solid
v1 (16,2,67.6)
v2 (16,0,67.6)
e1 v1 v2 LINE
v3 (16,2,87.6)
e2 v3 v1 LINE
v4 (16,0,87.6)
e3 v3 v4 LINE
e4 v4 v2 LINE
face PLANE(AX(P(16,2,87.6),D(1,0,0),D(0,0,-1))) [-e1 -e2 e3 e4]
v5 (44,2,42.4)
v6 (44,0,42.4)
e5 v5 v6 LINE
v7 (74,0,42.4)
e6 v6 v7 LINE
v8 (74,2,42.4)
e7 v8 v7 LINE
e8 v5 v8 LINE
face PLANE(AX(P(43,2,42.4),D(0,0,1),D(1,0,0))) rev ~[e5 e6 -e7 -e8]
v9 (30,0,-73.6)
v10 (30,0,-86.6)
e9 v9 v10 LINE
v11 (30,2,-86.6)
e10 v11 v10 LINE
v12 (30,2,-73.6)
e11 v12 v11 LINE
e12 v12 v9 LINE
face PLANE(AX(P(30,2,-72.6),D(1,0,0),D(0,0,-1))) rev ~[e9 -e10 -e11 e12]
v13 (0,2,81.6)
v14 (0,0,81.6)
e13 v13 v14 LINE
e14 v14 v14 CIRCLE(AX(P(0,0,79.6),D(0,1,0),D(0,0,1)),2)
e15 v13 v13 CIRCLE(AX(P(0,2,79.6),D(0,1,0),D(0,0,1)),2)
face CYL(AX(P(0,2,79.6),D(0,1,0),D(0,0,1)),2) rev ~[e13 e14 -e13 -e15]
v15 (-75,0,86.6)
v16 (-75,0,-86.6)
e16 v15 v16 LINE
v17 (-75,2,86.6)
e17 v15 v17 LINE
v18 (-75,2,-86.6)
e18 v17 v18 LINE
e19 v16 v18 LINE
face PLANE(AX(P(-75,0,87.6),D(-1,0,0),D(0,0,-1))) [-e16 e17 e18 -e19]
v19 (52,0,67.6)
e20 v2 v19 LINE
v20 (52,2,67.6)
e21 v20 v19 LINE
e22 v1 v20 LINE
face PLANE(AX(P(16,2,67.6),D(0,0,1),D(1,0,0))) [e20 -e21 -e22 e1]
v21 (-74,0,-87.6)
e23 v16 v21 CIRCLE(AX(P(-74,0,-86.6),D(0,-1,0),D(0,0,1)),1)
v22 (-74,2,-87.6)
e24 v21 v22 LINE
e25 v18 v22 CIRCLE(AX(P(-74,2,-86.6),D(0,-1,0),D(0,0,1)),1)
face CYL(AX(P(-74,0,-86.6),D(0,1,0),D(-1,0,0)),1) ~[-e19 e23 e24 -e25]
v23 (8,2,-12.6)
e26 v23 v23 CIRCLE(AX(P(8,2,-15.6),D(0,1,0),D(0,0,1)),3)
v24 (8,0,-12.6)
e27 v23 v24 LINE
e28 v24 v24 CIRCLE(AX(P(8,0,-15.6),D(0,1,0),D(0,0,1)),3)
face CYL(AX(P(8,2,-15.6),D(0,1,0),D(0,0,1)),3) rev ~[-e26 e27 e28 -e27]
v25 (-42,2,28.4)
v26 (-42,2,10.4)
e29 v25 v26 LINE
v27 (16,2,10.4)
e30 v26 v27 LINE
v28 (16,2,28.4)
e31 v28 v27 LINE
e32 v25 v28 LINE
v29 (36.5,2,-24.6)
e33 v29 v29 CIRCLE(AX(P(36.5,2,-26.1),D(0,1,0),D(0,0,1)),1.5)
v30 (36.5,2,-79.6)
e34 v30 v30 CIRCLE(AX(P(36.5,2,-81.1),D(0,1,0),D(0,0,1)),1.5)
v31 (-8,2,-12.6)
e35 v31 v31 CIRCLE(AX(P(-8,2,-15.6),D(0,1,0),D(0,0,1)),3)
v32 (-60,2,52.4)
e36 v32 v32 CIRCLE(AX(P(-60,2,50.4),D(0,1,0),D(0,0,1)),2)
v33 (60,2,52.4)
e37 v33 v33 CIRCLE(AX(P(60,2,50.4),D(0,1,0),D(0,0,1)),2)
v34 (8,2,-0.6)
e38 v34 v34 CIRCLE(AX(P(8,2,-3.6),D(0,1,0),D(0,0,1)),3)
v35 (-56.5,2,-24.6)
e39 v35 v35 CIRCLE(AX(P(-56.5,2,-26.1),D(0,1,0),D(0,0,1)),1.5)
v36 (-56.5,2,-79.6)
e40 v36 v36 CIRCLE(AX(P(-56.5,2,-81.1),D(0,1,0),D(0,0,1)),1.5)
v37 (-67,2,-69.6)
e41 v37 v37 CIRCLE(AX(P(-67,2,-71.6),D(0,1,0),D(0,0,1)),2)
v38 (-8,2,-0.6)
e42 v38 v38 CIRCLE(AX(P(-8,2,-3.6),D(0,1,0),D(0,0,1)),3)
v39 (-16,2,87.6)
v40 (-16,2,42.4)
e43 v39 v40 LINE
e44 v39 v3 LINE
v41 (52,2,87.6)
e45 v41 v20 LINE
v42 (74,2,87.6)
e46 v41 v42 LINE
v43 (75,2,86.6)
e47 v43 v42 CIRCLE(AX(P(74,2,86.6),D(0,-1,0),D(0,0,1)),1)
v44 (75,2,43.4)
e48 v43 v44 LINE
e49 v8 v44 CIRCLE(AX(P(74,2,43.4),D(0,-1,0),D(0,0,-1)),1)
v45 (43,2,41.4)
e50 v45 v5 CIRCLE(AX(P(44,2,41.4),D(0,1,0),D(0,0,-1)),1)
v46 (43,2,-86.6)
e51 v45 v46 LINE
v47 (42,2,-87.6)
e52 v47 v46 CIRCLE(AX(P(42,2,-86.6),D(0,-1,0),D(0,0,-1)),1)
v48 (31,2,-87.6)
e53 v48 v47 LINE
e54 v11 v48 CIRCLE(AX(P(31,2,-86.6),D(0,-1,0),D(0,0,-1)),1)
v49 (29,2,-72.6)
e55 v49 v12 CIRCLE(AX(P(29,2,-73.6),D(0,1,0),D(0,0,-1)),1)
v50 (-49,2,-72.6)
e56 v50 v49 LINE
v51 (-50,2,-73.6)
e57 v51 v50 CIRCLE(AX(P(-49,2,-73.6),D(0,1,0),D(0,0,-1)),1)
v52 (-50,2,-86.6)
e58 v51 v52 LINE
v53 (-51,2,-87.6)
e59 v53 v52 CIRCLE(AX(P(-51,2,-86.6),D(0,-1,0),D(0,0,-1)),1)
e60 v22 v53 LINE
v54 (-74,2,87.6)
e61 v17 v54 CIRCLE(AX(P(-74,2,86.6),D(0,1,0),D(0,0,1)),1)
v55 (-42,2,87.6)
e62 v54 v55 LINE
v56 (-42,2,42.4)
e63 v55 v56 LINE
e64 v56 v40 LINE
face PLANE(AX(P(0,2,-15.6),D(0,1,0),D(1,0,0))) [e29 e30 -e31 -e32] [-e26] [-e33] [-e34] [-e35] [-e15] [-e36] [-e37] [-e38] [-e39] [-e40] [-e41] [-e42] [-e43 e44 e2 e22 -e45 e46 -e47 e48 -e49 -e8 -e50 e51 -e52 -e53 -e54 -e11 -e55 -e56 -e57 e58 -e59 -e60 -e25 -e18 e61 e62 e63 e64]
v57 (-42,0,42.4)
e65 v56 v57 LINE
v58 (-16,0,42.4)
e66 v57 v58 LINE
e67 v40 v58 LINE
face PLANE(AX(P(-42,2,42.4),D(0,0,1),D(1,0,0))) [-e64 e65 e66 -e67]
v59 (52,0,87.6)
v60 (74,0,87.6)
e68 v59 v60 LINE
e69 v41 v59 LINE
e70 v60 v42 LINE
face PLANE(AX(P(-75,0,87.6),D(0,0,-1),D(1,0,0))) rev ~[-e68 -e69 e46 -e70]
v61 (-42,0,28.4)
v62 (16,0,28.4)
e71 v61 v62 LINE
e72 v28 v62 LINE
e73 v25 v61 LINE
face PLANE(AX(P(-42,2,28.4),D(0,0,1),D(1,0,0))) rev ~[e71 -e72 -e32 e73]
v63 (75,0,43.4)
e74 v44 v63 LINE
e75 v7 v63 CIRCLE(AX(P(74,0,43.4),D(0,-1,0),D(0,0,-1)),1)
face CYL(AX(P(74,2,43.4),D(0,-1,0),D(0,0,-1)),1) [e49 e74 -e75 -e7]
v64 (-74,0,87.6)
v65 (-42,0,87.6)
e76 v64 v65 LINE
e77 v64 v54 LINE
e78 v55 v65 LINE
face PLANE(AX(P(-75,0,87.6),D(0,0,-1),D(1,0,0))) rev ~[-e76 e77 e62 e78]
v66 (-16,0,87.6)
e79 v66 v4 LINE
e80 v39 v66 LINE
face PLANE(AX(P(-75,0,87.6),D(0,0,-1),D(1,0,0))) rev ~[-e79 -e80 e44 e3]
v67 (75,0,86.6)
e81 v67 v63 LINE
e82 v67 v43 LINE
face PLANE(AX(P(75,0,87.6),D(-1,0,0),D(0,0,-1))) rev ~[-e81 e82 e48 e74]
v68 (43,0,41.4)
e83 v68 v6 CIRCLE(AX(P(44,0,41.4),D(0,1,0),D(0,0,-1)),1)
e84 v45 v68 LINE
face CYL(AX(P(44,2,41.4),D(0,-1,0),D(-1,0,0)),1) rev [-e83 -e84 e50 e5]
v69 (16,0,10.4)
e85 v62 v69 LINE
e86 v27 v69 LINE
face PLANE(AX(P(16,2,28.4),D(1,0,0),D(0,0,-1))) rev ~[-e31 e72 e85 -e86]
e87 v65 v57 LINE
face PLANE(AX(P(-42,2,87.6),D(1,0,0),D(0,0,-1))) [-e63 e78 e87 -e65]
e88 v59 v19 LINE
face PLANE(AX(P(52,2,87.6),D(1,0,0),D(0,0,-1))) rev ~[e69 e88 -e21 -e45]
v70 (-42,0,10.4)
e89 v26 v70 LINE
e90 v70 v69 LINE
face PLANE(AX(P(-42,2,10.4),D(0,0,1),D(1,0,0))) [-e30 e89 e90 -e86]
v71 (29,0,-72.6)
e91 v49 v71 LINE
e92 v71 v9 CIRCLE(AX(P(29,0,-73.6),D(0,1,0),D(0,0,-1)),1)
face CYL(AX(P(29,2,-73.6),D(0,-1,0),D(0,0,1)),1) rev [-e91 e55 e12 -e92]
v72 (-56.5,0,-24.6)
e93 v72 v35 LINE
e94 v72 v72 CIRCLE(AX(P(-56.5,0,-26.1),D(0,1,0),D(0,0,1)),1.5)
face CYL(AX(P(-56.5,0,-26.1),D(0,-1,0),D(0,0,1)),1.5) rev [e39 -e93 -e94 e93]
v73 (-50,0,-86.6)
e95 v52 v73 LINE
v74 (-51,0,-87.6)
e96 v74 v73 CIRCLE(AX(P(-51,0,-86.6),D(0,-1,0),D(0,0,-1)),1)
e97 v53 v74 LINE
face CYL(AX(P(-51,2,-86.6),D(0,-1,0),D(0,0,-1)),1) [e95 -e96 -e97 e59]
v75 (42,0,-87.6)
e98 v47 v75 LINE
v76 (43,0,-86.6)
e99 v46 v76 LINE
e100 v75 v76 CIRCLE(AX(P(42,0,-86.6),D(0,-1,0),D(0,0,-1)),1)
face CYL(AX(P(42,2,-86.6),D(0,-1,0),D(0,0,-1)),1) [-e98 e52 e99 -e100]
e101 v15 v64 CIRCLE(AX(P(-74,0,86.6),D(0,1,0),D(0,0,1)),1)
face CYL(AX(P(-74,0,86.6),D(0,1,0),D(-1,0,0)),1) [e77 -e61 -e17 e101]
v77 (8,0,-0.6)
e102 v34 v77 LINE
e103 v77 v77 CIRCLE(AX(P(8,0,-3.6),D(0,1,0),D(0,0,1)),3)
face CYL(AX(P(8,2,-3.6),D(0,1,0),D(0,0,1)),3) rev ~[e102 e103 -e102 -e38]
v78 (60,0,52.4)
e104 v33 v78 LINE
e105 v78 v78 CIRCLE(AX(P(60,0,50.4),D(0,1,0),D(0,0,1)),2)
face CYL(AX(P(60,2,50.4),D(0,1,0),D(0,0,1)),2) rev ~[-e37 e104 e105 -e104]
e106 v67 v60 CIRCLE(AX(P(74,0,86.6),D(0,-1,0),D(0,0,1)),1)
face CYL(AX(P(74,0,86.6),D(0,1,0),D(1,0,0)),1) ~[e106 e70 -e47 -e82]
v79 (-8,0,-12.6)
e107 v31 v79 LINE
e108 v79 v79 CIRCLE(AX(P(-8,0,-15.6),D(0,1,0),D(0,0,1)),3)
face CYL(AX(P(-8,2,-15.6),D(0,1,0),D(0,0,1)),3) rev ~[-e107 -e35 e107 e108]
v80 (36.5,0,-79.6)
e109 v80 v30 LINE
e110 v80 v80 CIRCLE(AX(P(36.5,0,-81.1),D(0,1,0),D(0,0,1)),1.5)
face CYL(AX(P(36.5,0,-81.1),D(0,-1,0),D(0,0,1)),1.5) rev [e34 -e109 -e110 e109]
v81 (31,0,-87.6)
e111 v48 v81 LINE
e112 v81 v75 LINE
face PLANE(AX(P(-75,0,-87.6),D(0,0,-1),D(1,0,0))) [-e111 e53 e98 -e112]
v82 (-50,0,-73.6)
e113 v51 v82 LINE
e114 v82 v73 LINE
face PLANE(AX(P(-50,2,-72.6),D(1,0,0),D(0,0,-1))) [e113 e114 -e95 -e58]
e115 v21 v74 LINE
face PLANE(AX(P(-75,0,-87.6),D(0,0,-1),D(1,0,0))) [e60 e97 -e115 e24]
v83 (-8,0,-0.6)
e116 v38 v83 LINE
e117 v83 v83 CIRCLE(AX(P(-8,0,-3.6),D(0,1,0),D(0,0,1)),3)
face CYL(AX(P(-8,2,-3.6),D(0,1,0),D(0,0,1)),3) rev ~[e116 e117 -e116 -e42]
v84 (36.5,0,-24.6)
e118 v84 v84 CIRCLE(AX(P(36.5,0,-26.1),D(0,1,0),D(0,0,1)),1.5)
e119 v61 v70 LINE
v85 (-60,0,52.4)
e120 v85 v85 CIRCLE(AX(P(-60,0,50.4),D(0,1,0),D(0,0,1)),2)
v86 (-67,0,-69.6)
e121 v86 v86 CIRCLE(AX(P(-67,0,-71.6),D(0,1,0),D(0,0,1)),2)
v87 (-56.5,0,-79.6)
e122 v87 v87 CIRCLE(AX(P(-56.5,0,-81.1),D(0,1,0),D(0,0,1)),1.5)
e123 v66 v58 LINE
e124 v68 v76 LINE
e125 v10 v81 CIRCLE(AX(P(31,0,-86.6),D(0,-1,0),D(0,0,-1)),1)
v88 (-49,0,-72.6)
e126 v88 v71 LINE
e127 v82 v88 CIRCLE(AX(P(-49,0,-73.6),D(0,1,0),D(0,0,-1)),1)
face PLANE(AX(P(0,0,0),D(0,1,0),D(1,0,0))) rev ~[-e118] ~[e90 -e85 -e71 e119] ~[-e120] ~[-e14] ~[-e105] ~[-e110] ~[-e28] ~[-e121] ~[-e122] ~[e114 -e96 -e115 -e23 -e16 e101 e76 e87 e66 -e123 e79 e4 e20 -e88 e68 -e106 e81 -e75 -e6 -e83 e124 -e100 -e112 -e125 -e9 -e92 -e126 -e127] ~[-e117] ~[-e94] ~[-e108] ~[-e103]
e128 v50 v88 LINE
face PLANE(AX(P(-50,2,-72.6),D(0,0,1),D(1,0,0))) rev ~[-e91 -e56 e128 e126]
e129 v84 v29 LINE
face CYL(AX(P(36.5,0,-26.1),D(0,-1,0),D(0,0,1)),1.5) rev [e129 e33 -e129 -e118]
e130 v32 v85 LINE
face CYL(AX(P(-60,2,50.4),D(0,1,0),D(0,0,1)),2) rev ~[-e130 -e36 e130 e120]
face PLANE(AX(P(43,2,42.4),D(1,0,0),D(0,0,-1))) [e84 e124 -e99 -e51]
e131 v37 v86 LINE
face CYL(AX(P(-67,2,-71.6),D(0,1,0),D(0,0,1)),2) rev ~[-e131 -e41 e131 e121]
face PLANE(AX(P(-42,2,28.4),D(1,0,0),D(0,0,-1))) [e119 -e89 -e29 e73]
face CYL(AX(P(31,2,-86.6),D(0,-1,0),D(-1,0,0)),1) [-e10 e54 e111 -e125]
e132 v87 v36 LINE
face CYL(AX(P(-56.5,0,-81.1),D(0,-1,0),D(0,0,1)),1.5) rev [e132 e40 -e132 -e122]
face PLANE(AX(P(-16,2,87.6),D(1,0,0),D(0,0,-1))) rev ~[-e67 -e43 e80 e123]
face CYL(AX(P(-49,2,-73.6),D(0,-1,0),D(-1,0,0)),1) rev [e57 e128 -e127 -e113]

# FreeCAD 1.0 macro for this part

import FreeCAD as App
import Part
import Sketcher


def edges_at(feature, points):
    """Names of the edges that pass closest to the given points."""
    edges = feature.Shape.Edges
    near = lambda p: min(range(len(edges)), key=lambda i: edges[i].distToShape(Part.Vertex(*p))[0])
    return sorted({f"Edge{near(p) + 1}" for p in points})


def add_polygon(sketch, points):
    """Adds a closed chain of lines whose ends are joined by coincident constraints."""
    first, n = sketch.GeometryCount, len(points)
    for a, b in zip(points, points[1:] + points[:1]):
        sketch.addGeometry(Part.LineSegment(App.Vector(*a, 0), App.Vector(*b, 0)), False)
    for i in range(n):
        sketch.addConstraint(Sketcher.Constraint("Coincident", first + i, 2, first + (i + 1) % n, 1))

doc = App.newDocument("Part")
params = doc.addObject("Spreadsheet::Sheet", "Params")
for row, (alias, value) in enumerate([
    ("sketch1_diameter", "3 mm"),
    ("sketch1_width", "150 mm"),
    ("sketch1_height", "175.2 mm"),
    ("pad1_length", "2 mm"),
    ("sketch2_width", "80 mm"),
    ("sketch2_height", "15 mm"),
    ("pocket1_length", "10 mm"),
    ("sketch3_width", "32 mm"),
    ("sketch3_height", "130 mm"),
    ("pocket2_length", "10 mm"),
    ("sketch4_diameter", "4 mm"),
    ("pocket3_length", "10 mm"),
    ("sketch5_diameter", "6 mm"),
    ("pocket4_length", "10 mm"),
    ("linearpattern_pitch", "8 mm"),
    ("linearpattern2_pitch", "8 mm"),
    ("sketch6_diameter", "6 mm"),
    ("pad2_length", "2 mm"),
    ("sketch7_width", "26 mm"),
    ("sketch7_width2", "36 mm"),
    ("sketch7_width3", "58 mm"),
    ("sketch7_height", "20 mm"),
    ("sketch7_height2", "18 mm"),
    ("pocket5_length", "10 mm"),
    ("fillet_radius", "1 mm"),
], start=1):
    params.set(f"A{row}", alias)
    params.set(f"B{row}", "=" + value)
    params.setAlias(f"B{row}", alias)

body = doc.addObject("PartDesign::Body", "Body")

# Sketch on XZ plane
sketch1 = doc.addObject("Sketcher::SketchObject", "Sketch")
body.addObject(sketch1)
sketch1.AttachmentSupport = (doc.XZ_Plane, [""])
sketch1.MapMode = "FlatFace"
add_polygon(sketch1, [(-75, -87.6), (-75, 87.6), (75, 87.6), (75, -87.6)])  # lines 0-3
sketch1.addGeometry(Part.Circle(App.Vector(-56.5, -26.1, 0), App.Vector(0, 0, 1), 1.5), False)  # 4
sketch1.addGeometry(Part.Circle(App.Vector(36.5, -26.1, 0), App.Vector(0, 0, 1), 1.5), False)  # 5
sketch1.addGeometry(Part.Circle(App.Vector(-56.5, -81.1, 0), App.Vector(0, 0, 1), 1.5), False)  # 6
sketch1.addGeometry(Part.Circle(App.Vector(36.5, -81.1, 0), App.Vector(0, 0, 1), 1.5), False)  # 7
sketch1.addConstraint([
    Sketcher.Constraint("Vertical", 0),
    Sketcher.Constraint("Horizontal", 1),
    Sketcher.Constraint("Vertical", 2),
    Sketcher.Constraint("Horizontal", 3),
    Sketcher.Constraint("Equal", 4, 5),
    Sketcher.Constraint("Equal", 5, 6),
    Sketcher.Constraint("Equal", 6, 7),
    Sketcher.Constraint("Symmetric", 0, 2, 2, 2, -1, 1),
    Sketcher.Constraint("Horizontal", 4, 3, 5, 3),
    Sketcher.Constraint("Horizontal", 6, 3, 7, 3),
    Sketcher.Constraint("Vertical", 4, 3, 6, 3),
    Sketcher.Constraint("Vertical", 5, 3, 7, 3),
    Sketcher.Constraint("Diameter", 4, 3.0),
    Sketcher.Constraint("DistanceX", 1, 1, 1, 2, 150.0),
    Sketcher.Constraint("DistanceY", 0, 1, 0, 2, 175.2),
    Sketcher.Constraint("DistanceX", 4, 3, 5, 3, 93.0),
    Sketcher.Constraint("DistanceY", 6, 3, 4, 3, 55.0),
    Sketcher.Constraint("DistanceX", 4, 3, -1, 1, 56.5),
    Sketcher.Constraint("DistanceY", 4, 3, -1, 1, 26.1),
])
sketch1.setExpression("Constraints[16]", "Params.sketch1_diameter")
sketch1.setExpression("Constraints[17]", "Params.sketch1_width")
sketch1.setExpression("Constraints[18]", "Params.sketch1_height")
pad1 = doc.addObject("PartDesign::Pad", "Pad")
body.addObject(pad1)
pad1.Profile = sketch1
pad1.setExpression("Length", "Params.pad1_length")
pad1.Reversed = True

# Sketch on XZ plane
sketch2 = doc.addObject("Sketcher::SketchObject", "Sketch001")
body.addObject(sketch2)
sketch2.AttachmentSupport = (doc.XZ_Plane, [""])
sketch2.MapMode = "FlatFace"
sketch2.AttachmentOffset = App.Placement(App.Vector(0, 0, -2), App.Rotation())
add_polygon(sketch2, [(-50, -88), (-50, -73), (30, -73), (30, -88)])  # lines 0-3
sketch2.addConstraint([
    Sketcher.Constraint("Vertical", 0),
    Sketcher.Constraint("Horizontal", 1),
    Sketcher.Constraint("Vertical", 2),
    Sketcher.Constraint("Horizontal", 3),
    Sketcher.Constraint("DistanceX", 1, 1, 1, 2, 80.0),
    Sketcher.Constraint("DistanceY", 0, 1, 0, 2, 15.0),
    Sketcher.Constraint("DistanceX", 0, 2, -1, 1, 50.0),
    Sketcher.Constraint("DistanceY", 0, 2, -1, 1, 72.6),
])
sketch2.setExpression("Constraints[8]", "Params.sketch2_width")
sketch2.setExpression("Constraints[9]", "Params.sketch2_height")
pocket1 = doc.addObject("PartDesign::Pocket", "Pocket")
body.addObject(pocket1)
pocket1.Profile = sketch2
pocket1.setExpression("Length", "Params.pocket1_length")
pocket1.Reversed = True

# Sketch on XZ plane
sketch3 = doc.addObject("Sketcher::SketchObject", "Sketch002")
body.addObject(sketch3)
sketch3.AttachmentSupport = (doc.XZ_Plane, [""])
sketch3.MapMode = "FlatFace"
sketch3.AttachmentOffset = App.Placement(App.Vector(0, 0, -2), App.Rotation())
add_polygon(sketch3, [(43, -88), (43, 42), (75, 42), (75, -88)])  # lines 0-3
sketch3.addConstraint([
    Sketcher.Constraint("Vertical", 0),
    Sketcher.Constraint("Horizontal", 1),
    Sketcher.Constraint("Vertical", 2),
    Sketcher.Constraint("Horizontal", 3),
    Sketcher.Constraint("DistanceX", 1, 1, 1, 2, 32.0),
    Sketcher.Constraint("DistanceY", 0, 1, 0, 2, 130.0),
    Sketcher.Constraint("DistanceX", -1, 1, 0, 2, 43.0),
    Sketcher.Constraint("DistanceY", -1, 1, 0, 2, 42.4),
])
sketch3.setExpression("Constraints[8]", "Params.sketch3_width")
sketch3.setExpression("Constraints[9]", "Params.sketch3_height")
pocket2 = doc.addObject("PartDesign::Pocket", "Pocket001")
body.addObject(pocket2)
pocket2.Profile = sketch3
pocket2.setExpression("Length", "Params.pocket2_length")
pocket2.Reversed = True

# Sketch on XZ plane
sketch4 = doc.addObject("Sketcher::SketchObject", "Sketch003")
body.addObject(sketch4)
sketch4.AttachmentSupport = (doc.XZ_Plane, [""])
sketch4.MapMode = "FlatFace"
sketch4.AttachmentOffset = App.Placement(App.Vector(0, 0, -2), App.Rotation())
sketch4.addGeometry([
    Part.Circle(App.Vector(-60, 50.4, 0), App.Vector(0, 0, 1), 2),
    Part.Circle(App.Vector(60, 50.4, 0), App.Vector(0, 0, 1), 2),
    Part.Circle(App.Vector(-67, -71.6, 0), App.Vector(0, 0, 1), 2),
    Part.Circle(App.Vector(0, 79.6, 0), App.Vector(0, 0, 1), 2),
], False)
sketch4.addConstraint([
    Sketcher.Constraint("Equal", 0, 1),
    Sketcher.Constraint("Equal", 1, 2),
    Sketcher.Constraint("Equal", 2, 3),
    Sketcher.Constraint("Symmetric", 0, 3, 1, 3, -2),
    Sketcher.Constraint("PointOnObject", 3, 3, -2),
    Sketcher.Constraint("Diameter", 0, 4.0),
    Sketcher.Constraint("DistanceX", 0, 3, -1, 1, 60.0),
    Sketcher.Constraint("DistanceX", 2, 3, -1, 1, 67.0),
    Sketcher.Constraint("DistanceY", 2, 3, 0, 3, 122.0),
    Sketcher.Constraint("DistanceY", -1, 1, 0, 3, 50.4),
    Sketcher.Constraint("DistanceY", -1, 1, 3, 3, 79.6),
])
sketch4.setExpression("Constraints[5]", "Params.sketch4_diameter")
pocket3 = doc.addObject("PartDesign::Pocket", "Pocket002")
body.addObject(pocket3)
pocket3.Profile = sketch4
pocket3.setExpression("Length", "Params.pocket3_length")
pocket3.Reversed = True

# Sketch on XZ plane
sketch5 = doc.addObject("Sketcher::SketchObject", "Sketch004")
body.addObject(sketch5)
sketch5.AttachmentSupport = (doc.XZ_Plane, [""])
sketch5.MapMode = "FlatFace"
sketch5.AttachmentOffset = App.Placement(App.Vector(0, 0, -2), App.Rotation())
sketch5.addGeometry([
    Part.Circle(App.Vector(0, -15.6, 0), App.Vector(0, 0, 1), 3),
    Part.Circle(App.Vector(0, -3.6, 0), App.Vector(0, 0, 1), 3),
], False)
sketch5.addConstraint([
    Sketcher.Constraint("Equal", 0, 1),
    Sketcher.Constraint("PointOnObject", 0, 3, -2),
    Sketcher.Constraint("PointOnObject", 1, 3, -2),
    Sketcher.Constraint("Diameter", 0, 6.0),
    Sketcher.Constraint("DistanceY", 0, 3, 1, 3, 12.0),
    Sketcher.Constraint("DistanceY", 0, 3, -1, 1, 15.6),
])
sketch5.setExpression("Constraints[3]", "Params.sketch5_diameter")
pocket4 = doc.addObject("PartDesign::Pocket", "Pocket003")
body.addObject(pocket4)
pocket4.Profile = sketch5
pocket4.setExpression("Length", "Params.pocket4_length")
pocket4.Reversed = True
doc.recompute()

linearpattern = doc.addObject("PartDesign::LinearPattern", "LinearPattern")
body.addObject(linearpattern)
linearpattern.Originals = [pocket4]
linearpattern.Direction = (doc.X_Axis, [""])
linearpattern.Mode = "offset"
linearpattern.setExpression("Offset", "Params.linearpattern_pitch")
linearpattern.Occurrences = 2
linearpattern.Reversed = True
body.Tip = linearpattern
doc.recompute()

linearpattern2 = doc.addObject("PartDesign::LinearPattern", "LinearPattern001")
body.addObject(linearpattern2)
linearpattern2.Originals = [pocket4]
linearpattern2.Direction = (doc.X_Axis, [""])
linearpattern2.Mode = "offset"
linearpattern2.setExpression("Offset", "Params.linearpattern2_pitch")
linearpattern2.Occurrences = 2
body.Tip = linearpattern2

# Sketch on XZ plane
sketch6 = doc.addObject("Sketcher::SketchObject", "Sketch005")
body.addObject(sketch6)
sketch6.AttachmentSupport = (doc.XZ_Plane, [""])
sketch6.MapMode = "FlatFace"
sketch6.AttachmentOffset = App.Placement(App.Vector(0, 0, -2), App.Rotation())
sketch6.addGeometry([
    Part.Circle(App.Vector(0, -15.6, 0), App.Vector(0, 0, 1), 3),
    Part.Circle(App.Vector(0, -3.6, 0), App.Vector(0, 0, 1), 3),
], False)
sketch6.addConstraint([
    Sketcher.Constraint("Equal", 0, 1),
    Sketcher.Constraint("PointOnObject", 0, 3, -2),
    Sketcher.Constraint("PointOnObject", 1, 3, -2),
    Sketcher.Constraint("Diameter", 0, 6.0),
    Sketcher.Constraint("DistanceY", 0, 3, 1, 3, 12.0),
    Sketcher.Constraint("DistanceY", 0, 3, -1, 1, 15.6),
])
sketch6.setExpression("Constraints[3]", "Params.sketch6_diameter")
pad2 = doc.addObject("PartDesign::Pad", "Pad001")
body.addObject(pad2)
pad2.Profile = sketch6
pad2.setExpression("Length", "Params.pad2_length")

# Sketch on XZ plane
sketch7 = doc.addObject("Sketcher::SketchObject", "Sketch006")
body.addObject(sketch7)
sketch7.AttachmentSupport = (doc.XZ_Plane, [""])
sketch7.MapMode = "FlatFace"
sketch7.AttachmentOffset = App.Placement(App.Vector(0, 0, -2), App.Rotation())
add_polygon(sketch7, [(-42, 42), (-42, 88), (-16, 88), (-16, 42)])  # lines 0-3
add_polygon(sketch7, [(16, 68), (16, 88), (52, 88), (52, 68)])  # lines 4-7
add_polygon(sketch7, [(-42, 10), (-42, 28), (16, 28), (16, 10)])  # lines 8-11
sketch7.addConstraint([
    Sketcher.Constraint("Vertical", 0),
    Sketcher.Constraint("Horizontal", 1),
    Sketcher.Constraint("Vertical", 2),
    Sketcher.Constraint("Horizontal", 3),
    Sketcher.Constraint("Vertical", 4),
    Sketcher.Constraint("Horizontal", 5),
    Sketcher.Constraint("Vertical", 6),
    Sketcher.Constraint("Horizontal", 7),
    Sketcher.Constraint("Vertical", 8),
    Sketcher.Constraint("Horizontal", 9),
    Sketcher.Constraint("Vertical", 10),
    Sketcher.Constraint("Horizontal", 11),
    Sketcher.Constraint("Symmetric", 1, 2, 4, 2, -2),
    Sketcher.Constraint("Vertical", 3, 2, 8, 2),
    Sketcher.Constraint("Vertical", 7, 2, 9, 2),
    Sketcher.Constraint("DistanceX", 1, 1, 1, 2, 26.0),
    Sketcher.Constraint("DistanceX", 5, 1, 5, 2, 36.0),
    Sketcher.Constraint("DistanceX", 9, 1, 9, 2, 58.0),
    Sketcher.Constraint("DistanceY", 4, 1, 4, 2, 20.0),
    Sketcher.Constraint("DistanceY", 8, 1, 8, 2, 18.0),
    Sketcher.Constraint("DistanceY", 0, 1, 0, 2, 45.2),
    Sketcher.Constraint("DistanceY", 8, 2, 3, 2, 14.0),
    Sketcher.Constraint("DistanceY", -1, 1, 0, 2, 87.6),
])
sketch7.setExpression("Constraints[27]", "Params.sketch7_width")
sketch7.setExpression("Constraints[28]", "Params.sketch7_width2")
sketch7.setExpression("Constraints[29]", "Params.sketch7_width3")
sketch7.setExpression("Constraints[30]", "Params.sketch7_height")
sketch7.setExpression("Constraints[31]", "Params.sketch7_height2")
pocket5 = doc.addObject("PartDesign::Pocket", "Pocket004")
body.addObject(pocket5)
pocket5.Profile = sketch7
pocket5.setExpression("Length", "Params.pocket5_length")
pocket5.Reversed = True
doc.recompute()

fillet = doc.addObject("PartDesign::Fillet", "Fillet")
body.addObject(fillet)
fillet.Base = (pocket5, edges_at(pocket5, [
    (30, 1, -87.6),
    (-50, 1, -87.6),
    (30, 1, -72.6),
    (-50, 1, -72.6),
    (43, 1, -87.6),
    (75, 1, 42.4),
    (43, 1, 42.4),
    (-75, 1, -87.6),
    (75, 1, 87.6),
    (-75, 1, 87.6),
]))
fillet.setExpression("Radius", "Params.fillet_radius")

doc.recompute()
